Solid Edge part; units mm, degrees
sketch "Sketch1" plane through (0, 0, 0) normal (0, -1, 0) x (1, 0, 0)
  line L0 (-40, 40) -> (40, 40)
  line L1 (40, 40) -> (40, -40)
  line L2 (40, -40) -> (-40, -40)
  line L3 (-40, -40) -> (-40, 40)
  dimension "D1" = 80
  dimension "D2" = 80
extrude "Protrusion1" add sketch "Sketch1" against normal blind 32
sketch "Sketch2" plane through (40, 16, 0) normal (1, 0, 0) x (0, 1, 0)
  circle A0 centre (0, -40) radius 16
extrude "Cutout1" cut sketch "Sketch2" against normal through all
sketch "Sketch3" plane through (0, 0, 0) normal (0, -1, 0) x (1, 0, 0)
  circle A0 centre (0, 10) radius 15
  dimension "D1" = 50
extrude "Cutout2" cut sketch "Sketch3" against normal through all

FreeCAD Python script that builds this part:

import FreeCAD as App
import Part
import Sketcher
from FreeCAD import Vector
Q = App.Units.Quantity

doc = App.newDocument("Part")
body = doc.addObject("PartDesign::Body", "Body")

sketch1 = body.newObject("Sketcher::SketchObject", "Sketch")
sketch1.AttachmentSupport = (doc.getObject("XZ_Plane"), [""])
sketch1.MapMode = "FlatFace"
sketch1.addGeometry([
    Part.LineSegment(Vector(40, 40, 0), Vector(-40, 40, 0)),
    Part.LineSegment(Vector(-40, 40, 0), Vector(-40, -40, 0)),
    Part.LineSegment(Vector(-40, -40, 0), Vector(40, -40, 0)),
    Part.LineSegment(Vector(40, -40, 0), Vector(40, 40, 0)),
], False)
sketch1.addConstraint([
    Sketcher.Constraint("Coincident", 0, 2, 1, 1),
    Sketcher.Constraint("Coincident", 1, 2, 2, 1),
    Sketcher.Constraint("Coincident", 2, 2, 3, 1),
    Sketcher.Constraint("Coincident", 3, 2, 0, 1),
    Sketcher.Constraint("Horizontal", 0),
    Sketcher.Constraint("Vertical", 1),
    Sketcher.Constraint("Horizontal", 2),
    Sketcher.Constraint("Vertical", 3),
    Sketcher.Constraint("Symmetric", 0, 2, 2, 2, -1, 1),
    Sketcher.Constraint("Equal", 2, 1),
    Sketcher.Constraint("DistanceX", 0, 2, -1, 1, Q("40 mm")),
])
pad1 = body.newObject("PartDesign::Pad", "Pad")
pad1.Profile = sketch1
pad1.Length = 32
pad1.Reversed = True

sketch2 = body.newObject("Sketcher::SketchObject", "Sketch001")
sketch2.AttachmentSupport = (doc.getObject("YZ_Plane"), [""])
sketch2.MapMode = "FlatFace"
sketch2.AttachmentOffset = App.Placement(Vector(0, 0, 40), App.Rotation())
sketch2.addGeometry(Part.Circle(Vector(16, -40, 0), Vector(0, 0, 1), 16), False)
sketch2.addConstraint([
    Sketcher.Constraint("Diameter", 0, Q("32 mm")),
    Sketcher.Constraint("DistanceX", -1, 1, 0, 3, Q("16 mm")),
    Sketcher.Constraint("DistanceY", 0, 3, -1, 1, Q("40 mm")),
])
pocket1 = body.newObject("PartDesign::Pocket", "Pocket")
pocket1.Profile = sketch2
pocket1.Type = "ThroughAll"

sketch3 = body.newObject("Sketcher::SketchObject", "Sketch002")
sketch3.AttachmentSupport = (doc.getObject("XZ_Plane"), [""])
sketch3.MapMode = "FlatFace"
sketch3.addGeometry(Part.Circle(Vector(0, 10, 0), Vector(0, 0, 1), 15), False)
sketch3.addConstraint([
    Sketcher.Constraint("PointOnObject", 0, 3, -2),
    Sketcher.Constraint("Diameter", 0, Q("30 mm")),
    Sketcher.Constraint("DistanceY", -1, 1, 0, 3, Q("10 mm")),
])
pocket2 = body.newObject("PartDesign::Pocket", "Pocket001")
pocket2.Profile = sketch3
pocket2.Type = "ThroughAll"

doc.recompute()
